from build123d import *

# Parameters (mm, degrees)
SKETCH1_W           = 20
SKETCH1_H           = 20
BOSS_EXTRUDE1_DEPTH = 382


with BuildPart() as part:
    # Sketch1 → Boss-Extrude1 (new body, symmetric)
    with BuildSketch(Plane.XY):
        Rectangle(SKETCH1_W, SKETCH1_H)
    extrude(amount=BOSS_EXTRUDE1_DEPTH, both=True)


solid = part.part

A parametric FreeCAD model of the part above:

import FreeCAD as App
import Part
import Sketcher

V = App.Vector

doc = App.newDocument("Part")
body = doc.addObject("PartDesign::Body", "Body")

sketch1 = body.newObject("Sketcher::SketchObject", "Sketch")
sketch1.AttachmentSupport = (doc.getObject("XY_Plane"), [""])
sketch1.MapMode = "FlatFace"
sketch1.addGeometry(Part.LineSegment(V(-10, 10, 0), V(-10, -10, 0)), False)
sketch1.addGeometry(Part.LineSegment(V(-10, -10, 0), V(10, -10, 0)), False)
sketch1.addGeometry(Part.LineSegment(V(10, -10, 0), V(10, 10, 0)), False)
sketch1.addGeometry(Part.LineSegment(V(10, 10, 0), V(-10, 10, 0)), False)
sketch1.addConstraint(Sketcher.Constraint("Coincident", 0, 2, 1, 1))
sketch1.addConstraint(Sketcher.Constraint("Coincident", 1, 2, 2, 1))
sketch1.addConstraint(Sketcher.Constraint("Coincident", 2, 2, 3, 1))
sketch1.addConstraint(Sketcher.Constraint("Coincident", 3, 2, 0, 1))
sketch1.addConstraint(Sketcher.Constraint("Vertical", 0))
sketch1.addConstraint(Sketcher.Constraint("Horizontal", 1))
sketch1.addConstraint(Sketcher.Constraint("Vertical", 2))
sketch1.addConstraint(Sketcher.Constraint("Horizontal", 3))
sketch1.addConstraint(Sketcher.Constraint("Symmetric", 0, 2, 2, 2, -1, 1))
sketch1.addConstraint(Sketcher.Constraint("Equal", 3, 0))
sketch1.addConstraint(Sketcher.Constraint("DistanceX", 1, 1, 1, 2, 20.0))
pad1 = body.newObject("PartDesign::Pad", "Pad")
pad1.Profile = sketch1
pad1.Length = 764
pad1.Midplane = True

doc.recompute()
